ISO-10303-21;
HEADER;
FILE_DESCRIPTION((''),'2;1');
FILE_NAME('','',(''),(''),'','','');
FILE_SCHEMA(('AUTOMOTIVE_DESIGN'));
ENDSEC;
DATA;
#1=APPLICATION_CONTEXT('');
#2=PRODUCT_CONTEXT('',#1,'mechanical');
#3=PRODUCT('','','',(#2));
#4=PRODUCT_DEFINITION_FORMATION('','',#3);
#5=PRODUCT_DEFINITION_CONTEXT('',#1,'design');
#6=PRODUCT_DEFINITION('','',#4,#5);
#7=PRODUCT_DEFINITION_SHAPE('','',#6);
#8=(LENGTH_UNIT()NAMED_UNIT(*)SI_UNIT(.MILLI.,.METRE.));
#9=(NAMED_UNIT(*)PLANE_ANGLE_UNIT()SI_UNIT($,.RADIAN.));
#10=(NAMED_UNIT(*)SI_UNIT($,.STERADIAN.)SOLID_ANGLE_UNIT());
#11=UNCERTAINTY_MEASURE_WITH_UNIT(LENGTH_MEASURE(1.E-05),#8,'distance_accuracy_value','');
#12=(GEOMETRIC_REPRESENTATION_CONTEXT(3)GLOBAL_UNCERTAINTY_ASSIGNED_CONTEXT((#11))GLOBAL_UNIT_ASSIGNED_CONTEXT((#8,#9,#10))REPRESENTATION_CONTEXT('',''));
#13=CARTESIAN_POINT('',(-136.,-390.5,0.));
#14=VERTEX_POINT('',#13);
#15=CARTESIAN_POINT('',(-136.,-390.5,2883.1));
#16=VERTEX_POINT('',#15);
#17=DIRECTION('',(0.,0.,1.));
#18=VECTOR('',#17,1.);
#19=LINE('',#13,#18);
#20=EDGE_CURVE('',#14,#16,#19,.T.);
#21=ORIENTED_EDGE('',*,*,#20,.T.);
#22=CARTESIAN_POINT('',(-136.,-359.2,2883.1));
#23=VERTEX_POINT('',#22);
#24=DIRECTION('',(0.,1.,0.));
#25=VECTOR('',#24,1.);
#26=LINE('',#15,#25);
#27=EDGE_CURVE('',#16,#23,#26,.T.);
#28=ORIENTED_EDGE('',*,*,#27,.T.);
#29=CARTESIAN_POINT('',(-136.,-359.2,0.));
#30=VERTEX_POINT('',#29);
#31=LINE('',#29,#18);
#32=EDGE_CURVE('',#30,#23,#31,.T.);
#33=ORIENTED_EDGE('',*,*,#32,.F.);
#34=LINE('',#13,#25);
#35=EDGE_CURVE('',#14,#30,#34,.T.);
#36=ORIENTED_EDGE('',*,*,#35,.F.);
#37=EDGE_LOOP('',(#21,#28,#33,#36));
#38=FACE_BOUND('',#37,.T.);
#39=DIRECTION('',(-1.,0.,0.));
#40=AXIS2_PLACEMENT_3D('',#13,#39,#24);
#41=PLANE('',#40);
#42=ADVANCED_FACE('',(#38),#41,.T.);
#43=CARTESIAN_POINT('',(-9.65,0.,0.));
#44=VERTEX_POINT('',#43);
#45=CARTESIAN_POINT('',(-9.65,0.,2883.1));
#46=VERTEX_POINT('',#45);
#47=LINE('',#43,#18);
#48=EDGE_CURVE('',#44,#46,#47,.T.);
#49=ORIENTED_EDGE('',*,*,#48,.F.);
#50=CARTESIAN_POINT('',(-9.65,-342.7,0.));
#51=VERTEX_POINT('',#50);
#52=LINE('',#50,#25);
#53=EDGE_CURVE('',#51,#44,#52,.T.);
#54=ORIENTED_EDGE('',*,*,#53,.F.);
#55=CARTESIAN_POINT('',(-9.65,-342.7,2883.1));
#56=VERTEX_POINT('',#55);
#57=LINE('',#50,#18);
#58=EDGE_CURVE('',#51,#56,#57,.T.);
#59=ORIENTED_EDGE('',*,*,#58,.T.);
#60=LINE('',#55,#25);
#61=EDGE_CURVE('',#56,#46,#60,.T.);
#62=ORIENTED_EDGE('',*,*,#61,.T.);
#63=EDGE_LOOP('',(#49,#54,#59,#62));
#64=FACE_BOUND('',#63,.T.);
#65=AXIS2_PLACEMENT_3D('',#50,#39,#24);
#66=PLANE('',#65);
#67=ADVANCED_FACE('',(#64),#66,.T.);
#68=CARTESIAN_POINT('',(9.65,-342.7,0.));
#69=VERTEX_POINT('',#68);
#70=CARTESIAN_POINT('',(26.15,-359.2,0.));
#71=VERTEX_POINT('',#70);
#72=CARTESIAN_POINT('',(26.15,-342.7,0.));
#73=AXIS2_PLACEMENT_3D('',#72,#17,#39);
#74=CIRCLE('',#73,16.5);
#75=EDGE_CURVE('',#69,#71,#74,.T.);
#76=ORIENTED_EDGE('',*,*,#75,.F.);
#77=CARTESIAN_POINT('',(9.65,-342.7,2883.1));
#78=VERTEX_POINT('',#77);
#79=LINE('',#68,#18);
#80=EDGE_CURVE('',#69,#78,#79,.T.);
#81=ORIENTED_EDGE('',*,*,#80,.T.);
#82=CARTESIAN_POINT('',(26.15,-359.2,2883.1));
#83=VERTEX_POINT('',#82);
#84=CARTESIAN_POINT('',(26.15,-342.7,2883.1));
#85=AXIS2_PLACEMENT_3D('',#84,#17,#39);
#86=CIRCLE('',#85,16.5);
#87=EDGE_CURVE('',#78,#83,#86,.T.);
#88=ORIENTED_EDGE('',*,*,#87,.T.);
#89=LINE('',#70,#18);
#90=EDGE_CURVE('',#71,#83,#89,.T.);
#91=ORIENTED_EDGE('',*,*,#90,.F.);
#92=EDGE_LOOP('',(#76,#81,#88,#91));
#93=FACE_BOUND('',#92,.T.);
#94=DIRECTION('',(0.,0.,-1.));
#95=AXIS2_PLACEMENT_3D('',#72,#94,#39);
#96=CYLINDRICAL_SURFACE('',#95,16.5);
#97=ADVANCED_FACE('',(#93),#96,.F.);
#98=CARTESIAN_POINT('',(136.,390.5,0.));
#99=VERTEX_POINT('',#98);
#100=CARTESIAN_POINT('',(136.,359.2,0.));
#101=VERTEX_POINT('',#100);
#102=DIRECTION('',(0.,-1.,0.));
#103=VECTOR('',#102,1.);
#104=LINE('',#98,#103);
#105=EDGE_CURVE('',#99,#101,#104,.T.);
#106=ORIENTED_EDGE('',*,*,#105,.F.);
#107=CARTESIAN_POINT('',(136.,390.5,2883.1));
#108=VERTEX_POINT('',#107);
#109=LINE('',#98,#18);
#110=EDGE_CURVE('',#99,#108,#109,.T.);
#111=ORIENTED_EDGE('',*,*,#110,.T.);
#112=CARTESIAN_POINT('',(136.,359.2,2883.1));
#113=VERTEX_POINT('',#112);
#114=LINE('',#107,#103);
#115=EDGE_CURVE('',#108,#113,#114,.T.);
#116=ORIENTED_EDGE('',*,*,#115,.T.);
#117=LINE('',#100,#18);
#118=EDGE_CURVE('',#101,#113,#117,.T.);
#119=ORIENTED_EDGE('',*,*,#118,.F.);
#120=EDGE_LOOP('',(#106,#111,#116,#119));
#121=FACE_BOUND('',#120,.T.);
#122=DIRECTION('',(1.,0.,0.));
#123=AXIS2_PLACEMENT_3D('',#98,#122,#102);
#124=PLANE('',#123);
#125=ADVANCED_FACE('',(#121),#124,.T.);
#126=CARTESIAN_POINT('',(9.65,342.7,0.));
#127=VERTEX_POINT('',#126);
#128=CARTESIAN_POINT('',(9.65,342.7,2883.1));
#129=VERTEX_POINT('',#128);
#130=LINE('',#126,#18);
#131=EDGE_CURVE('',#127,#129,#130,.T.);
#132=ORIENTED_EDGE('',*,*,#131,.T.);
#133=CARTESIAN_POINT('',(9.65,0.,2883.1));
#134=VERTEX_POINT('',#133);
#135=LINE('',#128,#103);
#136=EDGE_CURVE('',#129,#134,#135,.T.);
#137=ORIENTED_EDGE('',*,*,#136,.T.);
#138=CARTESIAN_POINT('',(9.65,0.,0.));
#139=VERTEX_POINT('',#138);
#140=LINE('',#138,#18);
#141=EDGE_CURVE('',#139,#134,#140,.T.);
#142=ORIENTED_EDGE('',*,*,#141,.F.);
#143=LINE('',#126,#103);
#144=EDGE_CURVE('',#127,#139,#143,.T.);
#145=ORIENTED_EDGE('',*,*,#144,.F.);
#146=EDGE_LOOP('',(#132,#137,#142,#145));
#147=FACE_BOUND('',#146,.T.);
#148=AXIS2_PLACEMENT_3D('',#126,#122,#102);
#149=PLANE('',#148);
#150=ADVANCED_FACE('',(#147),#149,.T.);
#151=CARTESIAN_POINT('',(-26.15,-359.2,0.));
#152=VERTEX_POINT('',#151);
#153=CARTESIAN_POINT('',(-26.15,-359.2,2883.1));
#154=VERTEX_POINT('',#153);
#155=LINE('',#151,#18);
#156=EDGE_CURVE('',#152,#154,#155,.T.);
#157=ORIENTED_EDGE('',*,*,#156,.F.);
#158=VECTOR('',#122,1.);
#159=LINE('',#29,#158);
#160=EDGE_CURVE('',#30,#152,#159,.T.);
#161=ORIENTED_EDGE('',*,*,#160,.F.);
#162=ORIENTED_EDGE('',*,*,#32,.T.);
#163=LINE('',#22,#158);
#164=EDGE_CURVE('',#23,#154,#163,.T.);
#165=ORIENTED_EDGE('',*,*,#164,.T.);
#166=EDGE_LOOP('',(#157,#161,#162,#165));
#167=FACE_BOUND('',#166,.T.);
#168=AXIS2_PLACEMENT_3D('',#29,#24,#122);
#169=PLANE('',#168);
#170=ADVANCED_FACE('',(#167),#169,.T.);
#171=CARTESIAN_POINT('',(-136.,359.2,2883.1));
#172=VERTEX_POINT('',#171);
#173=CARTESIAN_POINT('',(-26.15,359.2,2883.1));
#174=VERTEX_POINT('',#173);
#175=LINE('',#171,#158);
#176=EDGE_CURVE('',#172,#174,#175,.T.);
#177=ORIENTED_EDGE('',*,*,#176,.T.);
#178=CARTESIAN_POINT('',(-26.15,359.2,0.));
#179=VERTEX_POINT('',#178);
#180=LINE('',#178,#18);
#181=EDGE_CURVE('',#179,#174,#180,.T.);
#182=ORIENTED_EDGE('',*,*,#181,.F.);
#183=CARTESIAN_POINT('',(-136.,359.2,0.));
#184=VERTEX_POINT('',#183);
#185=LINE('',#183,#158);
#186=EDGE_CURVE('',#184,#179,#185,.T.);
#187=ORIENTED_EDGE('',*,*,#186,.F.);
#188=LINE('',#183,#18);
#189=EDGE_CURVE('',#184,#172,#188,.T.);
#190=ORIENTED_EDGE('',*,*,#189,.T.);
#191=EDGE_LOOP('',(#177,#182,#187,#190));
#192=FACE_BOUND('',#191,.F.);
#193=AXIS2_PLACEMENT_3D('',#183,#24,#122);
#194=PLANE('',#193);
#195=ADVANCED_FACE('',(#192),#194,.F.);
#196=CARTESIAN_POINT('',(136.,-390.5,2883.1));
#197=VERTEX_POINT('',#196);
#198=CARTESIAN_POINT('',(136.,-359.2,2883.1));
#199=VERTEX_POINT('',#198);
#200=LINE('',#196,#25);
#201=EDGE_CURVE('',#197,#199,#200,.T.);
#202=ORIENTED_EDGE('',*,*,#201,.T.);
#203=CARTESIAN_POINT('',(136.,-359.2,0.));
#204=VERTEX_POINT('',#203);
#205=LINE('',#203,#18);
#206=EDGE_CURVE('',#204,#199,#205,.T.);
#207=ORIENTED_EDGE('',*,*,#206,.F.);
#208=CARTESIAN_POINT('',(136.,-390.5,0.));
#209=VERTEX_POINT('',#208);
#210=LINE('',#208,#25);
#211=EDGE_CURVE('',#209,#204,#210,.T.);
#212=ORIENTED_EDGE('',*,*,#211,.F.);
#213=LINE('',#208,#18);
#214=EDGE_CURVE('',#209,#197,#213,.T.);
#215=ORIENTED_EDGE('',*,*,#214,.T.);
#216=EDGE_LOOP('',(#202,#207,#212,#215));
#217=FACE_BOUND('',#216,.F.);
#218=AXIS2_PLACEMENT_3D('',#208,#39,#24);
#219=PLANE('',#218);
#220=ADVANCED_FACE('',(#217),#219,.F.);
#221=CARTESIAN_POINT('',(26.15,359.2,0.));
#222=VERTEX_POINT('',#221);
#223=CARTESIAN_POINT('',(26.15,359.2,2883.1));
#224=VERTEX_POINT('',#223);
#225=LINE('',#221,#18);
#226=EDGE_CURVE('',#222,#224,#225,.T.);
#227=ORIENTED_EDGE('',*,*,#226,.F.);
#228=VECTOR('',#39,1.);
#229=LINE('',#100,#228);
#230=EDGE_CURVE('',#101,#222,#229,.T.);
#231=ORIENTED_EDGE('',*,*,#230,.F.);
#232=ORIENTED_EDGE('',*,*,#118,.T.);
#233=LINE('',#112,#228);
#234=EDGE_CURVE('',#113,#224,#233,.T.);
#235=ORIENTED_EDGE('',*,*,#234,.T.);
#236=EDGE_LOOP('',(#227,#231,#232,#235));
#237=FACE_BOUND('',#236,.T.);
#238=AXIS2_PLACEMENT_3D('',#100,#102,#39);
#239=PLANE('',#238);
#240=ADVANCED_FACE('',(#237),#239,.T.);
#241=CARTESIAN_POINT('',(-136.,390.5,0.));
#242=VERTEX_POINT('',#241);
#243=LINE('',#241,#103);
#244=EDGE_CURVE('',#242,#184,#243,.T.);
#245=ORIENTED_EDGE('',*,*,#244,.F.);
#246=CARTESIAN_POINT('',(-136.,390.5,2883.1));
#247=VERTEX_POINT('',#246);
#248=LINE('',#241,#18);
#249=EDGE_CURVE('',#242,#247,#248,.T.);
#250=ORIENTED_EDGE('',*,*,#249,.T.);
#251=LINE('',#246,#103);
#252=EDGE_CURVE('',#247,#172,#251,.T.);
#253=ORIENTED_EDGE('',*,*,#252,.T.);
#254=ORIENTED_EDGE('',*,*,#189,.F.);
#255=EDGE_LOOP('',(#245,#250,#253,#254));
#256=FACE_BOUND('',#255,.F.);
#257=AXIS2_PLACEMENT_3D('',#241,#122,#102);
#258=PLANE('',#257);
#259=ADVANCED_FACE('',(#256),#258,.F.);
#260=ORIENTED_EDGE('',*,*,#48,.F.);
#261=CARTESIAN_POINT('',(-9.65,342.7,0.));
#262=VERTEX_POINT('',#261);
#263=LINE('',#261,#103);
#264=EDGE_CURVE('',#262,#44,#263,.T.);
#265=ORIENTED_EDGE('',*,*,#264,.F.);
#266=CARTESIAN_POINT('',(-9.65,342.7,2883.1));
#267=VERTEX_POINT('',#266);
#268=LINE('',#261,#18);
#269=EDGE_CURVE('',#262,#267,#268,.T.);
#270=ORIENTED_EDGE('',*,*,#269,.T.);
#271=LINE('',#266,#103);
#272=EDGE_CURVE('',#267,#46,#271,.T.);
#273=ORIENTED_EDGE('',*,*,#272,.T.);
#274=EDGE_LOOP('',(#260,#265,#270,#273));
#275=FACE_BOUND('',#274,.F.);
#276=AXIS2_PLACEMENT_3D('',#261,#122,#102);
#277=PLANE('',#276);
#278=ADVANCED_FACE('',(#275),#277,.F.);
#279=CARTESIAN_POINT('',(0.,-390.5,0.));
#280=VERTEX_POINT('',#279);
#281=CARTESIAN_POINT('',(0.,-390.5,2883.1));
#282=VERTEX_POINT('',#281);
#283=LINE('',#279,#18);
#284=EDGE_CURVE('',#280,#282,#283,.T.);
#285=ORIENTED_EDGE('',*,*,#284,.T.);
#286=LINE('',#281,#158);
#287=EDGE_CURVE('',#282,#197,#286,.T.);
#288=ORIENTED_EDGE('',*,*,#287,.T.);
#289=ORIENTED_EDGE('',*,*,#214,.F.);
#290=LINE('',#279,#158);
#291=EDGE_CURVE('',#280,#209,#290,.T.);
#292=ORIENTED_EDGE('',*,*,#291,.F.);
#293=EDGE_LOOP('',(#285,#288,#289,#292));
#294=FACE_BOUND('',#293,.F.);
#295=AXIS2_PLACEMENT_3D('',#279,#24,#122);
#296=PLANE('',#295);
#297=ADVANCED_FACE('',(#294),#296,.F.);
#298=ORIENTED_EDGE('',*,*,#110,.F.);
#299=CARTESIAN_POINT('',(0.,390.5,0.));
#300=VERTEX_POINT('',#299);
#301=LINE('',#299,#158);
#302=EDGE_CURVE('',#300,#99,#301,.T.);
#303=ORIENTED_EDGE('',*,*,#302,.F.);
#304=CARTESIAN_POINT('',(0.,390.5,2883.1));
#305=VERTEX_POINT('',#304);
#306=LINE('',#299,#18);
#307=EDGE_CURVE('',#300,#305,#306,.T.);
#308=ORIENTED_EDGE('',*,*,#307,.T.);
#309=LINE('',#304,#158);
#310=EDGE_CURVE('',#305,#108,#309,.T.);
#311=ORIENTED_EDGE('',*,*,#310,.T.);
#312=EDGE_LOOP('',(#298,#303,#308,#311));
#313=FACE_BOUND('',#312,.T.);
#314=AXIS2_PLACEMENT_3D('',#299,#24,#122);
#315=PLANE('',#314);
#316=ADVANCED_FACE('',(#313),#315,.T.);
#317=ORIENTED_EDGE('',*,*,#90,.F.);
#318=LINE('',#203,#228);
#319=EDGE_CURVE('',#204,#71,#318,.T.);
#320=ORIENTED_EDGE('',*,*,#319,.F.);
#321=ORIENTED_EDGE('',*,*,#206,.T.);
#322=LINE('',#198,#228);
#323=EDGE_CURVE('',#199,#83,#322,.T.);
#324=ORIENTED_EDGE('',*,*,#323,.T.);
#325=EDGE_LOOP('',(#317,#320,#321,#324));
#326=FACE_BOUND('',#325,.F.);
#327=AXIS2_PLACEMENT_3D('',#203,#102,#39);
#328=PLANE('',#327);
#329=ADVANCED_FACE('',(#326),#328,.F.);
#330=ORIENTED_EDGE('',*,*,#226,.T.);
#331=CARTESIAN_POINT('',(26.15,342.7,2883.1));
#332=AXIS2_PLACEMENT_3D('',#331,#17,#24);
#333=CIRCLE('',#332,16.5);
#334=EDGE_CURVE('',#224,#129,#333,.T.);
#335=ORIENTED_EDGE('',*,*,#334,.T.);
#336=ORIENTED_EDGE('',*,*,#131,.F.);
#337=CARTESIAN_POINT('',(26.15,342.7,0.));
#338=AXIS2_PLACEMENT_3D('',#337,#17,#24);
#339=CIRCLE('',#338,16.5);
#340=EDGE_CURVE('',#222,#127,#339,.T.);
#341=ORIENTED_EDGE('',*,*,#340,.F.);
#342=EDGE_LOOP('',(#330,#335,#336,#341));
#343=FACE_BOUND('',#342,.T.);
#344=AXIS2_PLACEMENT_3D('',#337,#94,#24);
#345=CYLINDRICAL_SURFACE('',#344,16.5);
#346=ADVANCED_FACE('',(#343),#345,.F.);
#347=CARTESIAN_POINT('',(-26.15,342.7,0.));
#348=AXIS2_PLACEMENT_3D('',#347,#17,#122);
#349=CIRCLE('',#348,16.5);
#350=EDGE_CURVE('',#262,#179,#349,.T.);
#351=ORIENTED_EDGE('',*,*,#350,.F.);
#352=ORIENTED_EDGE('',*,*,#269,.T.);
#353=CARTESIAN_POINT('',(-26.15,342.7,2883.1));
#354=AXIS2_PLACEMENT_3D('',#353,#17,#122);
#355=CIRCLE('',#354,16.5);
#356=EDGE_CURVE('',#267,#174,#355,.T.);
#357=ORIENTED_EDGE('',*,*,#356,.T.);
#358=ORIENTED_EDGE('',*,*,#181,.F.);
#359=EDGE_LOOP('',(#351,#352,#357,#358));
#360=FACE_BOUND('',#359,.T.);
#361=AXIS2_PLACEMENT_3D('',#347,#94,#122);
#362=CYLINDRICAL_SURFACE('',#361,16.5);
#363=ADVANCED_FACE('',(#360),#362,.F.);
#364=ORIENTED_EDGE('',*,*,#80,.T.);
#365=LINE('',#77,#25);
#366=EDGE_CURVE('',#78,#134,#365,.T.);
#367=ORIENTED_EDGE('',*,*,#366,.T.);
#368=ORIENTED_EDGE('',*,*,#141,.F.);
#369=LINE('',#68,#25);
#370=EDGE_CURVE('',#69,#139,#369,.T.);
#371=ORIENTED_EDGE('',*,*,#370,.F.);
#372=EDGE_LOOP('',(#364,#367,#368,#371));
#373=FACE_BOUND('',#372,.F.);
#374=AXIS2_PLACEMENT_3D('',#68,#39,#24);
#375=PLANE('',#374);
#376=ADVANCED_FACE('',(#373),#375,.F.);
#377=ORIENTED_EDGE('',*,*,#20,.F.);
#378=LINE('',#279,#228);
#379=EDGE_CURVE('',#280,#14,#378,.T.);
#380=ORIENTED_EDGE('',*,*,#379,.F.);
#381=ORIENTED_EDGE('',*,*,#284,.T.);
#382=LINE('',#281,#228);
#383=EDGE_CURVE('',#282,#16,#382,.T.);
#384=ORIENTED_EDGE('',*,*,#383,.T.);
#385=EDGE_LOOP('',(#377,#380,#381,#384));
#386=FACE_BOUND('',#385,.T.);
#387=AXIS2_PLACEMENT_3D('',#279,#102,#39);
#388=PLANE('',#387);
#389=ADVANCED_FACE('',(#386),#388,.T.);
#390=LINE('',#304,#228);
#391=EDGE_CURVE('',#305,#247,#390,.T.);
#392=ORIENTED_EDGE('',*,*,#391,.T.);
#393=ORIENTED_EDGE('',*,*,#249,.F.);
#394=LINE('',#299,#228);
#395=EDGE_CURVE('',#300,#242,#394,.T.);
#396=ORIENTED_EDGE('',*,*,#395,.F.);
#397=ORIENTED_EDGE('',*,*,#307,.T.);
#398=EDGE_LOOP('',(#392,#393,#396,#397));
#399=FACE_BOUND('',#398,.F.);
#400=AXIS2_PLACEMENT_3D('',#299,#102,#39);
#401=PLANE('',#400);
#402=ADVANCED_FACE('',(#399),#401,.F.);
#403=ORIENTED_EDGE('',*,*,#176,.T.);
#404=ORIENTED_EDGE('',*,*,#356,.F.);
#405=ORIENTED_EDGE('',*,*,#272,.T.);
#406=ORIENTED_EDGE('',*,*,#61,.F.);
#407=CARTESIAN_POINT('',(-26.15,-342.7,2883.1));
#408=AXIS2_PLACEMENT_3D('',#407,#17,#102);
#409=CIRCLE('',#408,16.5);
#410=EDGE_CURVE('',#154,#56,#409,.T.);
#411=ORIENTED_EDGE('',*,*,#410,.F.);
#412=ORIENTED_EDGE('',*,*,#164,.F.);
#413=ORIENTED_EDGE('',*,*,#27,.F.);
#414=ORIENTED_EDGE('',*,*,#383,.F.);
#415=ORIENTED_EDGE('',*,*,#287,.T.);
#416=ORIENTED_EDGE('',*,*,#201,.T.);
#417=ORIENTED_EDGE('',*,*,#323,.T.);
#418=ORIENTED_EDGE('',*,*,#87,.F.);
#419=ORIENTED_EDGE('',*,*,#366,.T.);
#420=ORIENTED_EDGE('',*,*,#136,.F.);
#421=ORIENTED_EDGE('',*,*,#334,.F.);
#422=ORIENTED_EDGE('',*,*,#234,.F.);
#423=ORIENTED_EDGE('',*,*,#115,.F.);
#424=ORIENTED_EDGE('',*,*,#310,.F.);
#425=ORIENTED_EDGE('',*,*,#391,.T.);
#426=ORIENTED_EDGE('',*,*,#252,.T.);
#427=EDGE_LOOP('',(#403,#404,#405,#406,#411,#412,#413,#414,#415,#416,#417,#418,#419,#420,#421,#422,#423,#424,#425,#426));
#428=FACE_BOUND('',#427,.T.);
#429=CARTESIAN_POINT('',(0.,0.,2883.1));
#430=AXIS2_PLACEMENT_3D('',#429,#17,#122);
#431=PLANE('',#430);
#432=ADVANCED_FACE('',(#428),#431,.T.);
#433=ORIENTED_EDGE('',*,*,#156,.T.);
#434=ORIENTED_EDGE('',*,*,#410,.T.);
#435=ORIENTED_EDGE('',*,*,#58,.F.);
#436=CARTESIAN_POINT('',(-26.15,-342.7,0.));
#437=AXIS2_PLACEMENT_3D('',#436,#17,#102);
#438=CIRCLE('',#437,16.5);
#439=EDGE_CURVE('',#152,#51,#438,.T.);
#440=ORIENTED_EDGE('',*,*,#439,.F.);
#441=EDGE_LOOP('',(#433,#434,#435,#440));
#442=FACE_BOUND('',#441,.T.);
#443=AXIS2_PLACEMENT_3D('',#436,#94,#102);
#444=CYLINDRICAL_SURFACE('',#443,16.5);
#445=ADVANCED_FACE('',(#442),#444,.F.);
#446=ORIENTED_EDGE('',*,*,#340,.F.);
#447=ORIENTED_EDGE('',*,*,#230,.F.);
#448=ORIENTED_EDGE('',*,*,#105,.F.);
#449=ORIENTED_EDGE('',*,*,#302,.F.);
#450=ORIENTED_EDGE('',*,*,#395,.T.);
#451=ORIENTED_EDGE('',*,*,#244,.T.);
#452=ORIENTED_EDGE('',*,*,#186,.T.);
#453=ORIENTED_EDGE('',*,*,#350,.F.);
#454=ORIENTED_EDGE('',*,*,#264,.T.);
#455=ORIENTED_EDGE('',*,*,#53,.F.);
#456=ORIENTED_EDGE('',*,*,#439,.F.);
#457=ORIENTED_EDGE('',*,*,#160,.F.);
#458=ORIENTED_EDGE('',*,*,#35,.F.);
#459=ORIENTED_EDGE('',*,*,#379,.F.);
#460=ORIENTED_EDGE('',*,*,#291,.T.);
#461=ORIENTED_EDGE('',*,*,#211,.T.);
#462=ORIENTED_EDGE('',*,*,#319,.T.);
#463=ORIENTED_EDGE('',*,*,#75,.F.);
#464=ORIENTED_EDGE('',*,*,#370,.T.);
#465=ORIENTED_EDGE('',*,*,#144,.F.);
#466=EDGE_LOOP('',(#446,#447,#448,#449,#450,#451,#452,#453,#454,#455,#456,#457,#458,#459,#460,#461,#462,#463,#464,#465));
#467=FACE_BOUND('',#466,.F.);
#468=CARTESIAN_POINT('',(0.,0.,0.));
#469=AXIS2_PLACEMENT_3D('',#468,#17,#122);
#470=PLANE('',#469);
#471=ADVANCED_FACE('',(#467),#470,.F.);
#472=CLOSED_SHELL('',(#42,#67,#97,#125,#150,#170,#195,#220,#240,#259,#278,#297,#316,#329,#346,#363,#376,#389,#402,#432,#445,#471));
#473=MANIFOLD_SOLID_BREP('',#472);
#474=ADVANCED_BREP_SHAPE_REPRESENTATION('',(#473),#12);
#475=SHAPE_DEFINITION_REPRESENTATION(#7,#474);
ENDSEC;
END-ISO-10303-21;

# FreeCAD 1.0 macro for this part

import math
import FreeCAD as App
import Part
import Sketcher

V = App.Vector

doc = App.newDocument("Part")
params = doc.addObject("Spreadsheet::Sheet", "Params")
for row, (alias, value) in enumerate([
    ("sketch1_radius", "16.5 mm"),
    ("sketch1_height", "31.3 mm"),
    ("pad1_length", "2883.1 mm"),
], start=1):
    params.set(f"A{row}", alias)
    params.set(f"B{row}", "=" + value)
    params.setAlias(f"B{row}", alias)

body = doc.addObject("PartDesign::Body", "Body")

sketch1 = doc.addObject("Sketcher::SketchObject", "Sketch")
body.addObject(sketch1)
sketch1.AttachmentSupport = (doc.XY_Plane, [""])
sketch1.MapMode = "FlatFace"
sketch1.addGeometry([
    Part.LineSegment(V(-136, -359, 0), V(-136, -390, 0)),
    Part.LineSegment(V(-136, -390, 0), V(136, -390, 0)),
    Part.LineSegment(V(136, -390, 0), V(136, -359, 0)),
    Part.LineSegment(V(136, -359, 0), V(26, -359, 0)),
    Part.ArcOfCircle(Part.Circle(V(26, -343, 0), V(0, 0, 1), 16), math.radians(180), math.radians(270)),
    Part.LineSegment(V(10, -343, 0), V(10, 343, 0)),
    Part.ArcOfCircle(Part.Circle(V(26, 343, 0), V(0, 0, 1), 16), math.radians(90), math.radians(180)),
    Part.LineSegment(V(26, 359, 0), V(136, 359, 0)),
    Part.LineSegment(V(136, 359, 0), V(136, 390, 0)),
    Part.LineSegment(V(136, 390, 0), V(-136, 390, 0)),
    Part.LineSegment(V(-136, 390, 0), V(-136, 359, 0)),
    Part.LineSegment(V(-136, 359, 0), V(-26, 359, 0)),
    Part.ArcOfCircle(Part.Circle(V(-26, 343, 0), V(0, 0, 1), 16), math.radians(0), math.radians(90)),
    Part.LineSegment(V(-10, 343, 0), V(-10, -343, 0)),
    Part.ArcOfCircle(Part.Circle(V(-26, -343, 0), V(0, 0, 1), 16), math.radians(-90), math.radians(0)),
    Part.LineSegment(V(-26, -359, 0), V(-136, -359, 0)),
], False)
sketch1.addConstraint([
    Sketcher.Constraint("Coincident", 0, 2, 1, 1),
    Sketcher.Constraint("Coincident", 1, 2, 2, 1),
    Sketcher.Constraint("Coincident", 2, 2, 3, 1),
    Sketcher.Constraint("Tangent", 3, 2, 4, 2),
    Sketcher.Constraint("Tangent", 4, 1, 5, 1),
    Sketcher.Constraint("Tangent", 5, 2, 6, 2),
    Sketcher.Constraint("Tangent", 6, 1, 7, 1),
    Sketcher.Constraint("Coincident", 7, 2, 8, 1),
    Sketcher.Constraint("Coincident", 8, 2, 9, 1),
    Sketcher.Constraint("Coincident", 9, 2, 10, 1),
    Sketcher.Constraint("Coincident", 10, 2, 11, 1),
    Sketcher.Constraint("Tangent", 11, 2, 12, 2),
    Sketcher.Constraint("Tangent", 12, 1, 13, 1),
    Sketcher.Constraint("Tangent", 13, 2, 14, 2),
    Sketcher.Constraint("Tangent", 14, 1, 15, 1),
    Sketcher.Constraint("Coincident", 15, 2, 0, 1),
    Sketcher.Constraint("Vertical", 0),
    Sketcher.Constraint("Horizontal", 1),
    Sketcher.Constraint("Vertical", 2),
    Sketcher.Constraint("Horizontal", 3),
    Sketcher.Constraint("Vertical", 5),
    Sketcher.Constraint("Horizontal", 7),
    Sketcher.Constraint("Vertical", 8),
    Sketcher.Constraint("Horizontal", 9),
    Sketcher.Constraint("Vertical", 10),
    Sketcher.Constraint("Horizontal", 11),
    Sketcher.Constraint("Vertical", 13),
    Sketcher.Constraint("Horizontal", 15),
    Sketcher.Constraint("Equal", 4, 6),
    Sketcher.Constraint("Equal", 6, 12),
    Sketcher.Constraint("Equal", 12, 14),
    Sketcher.Constraint("Symmetric", 4, 3, 12, 3, -1, 1),
    Sketcher.Constraint("Symmetric", 0, 2, 8, 2, -1, 1),
    Sketcher.Constraint("Symmetric", 7, 2, 10, 2, -2),
    Sketcher.Constraint("Symmetric", 2, 2, 15, 2, -2),
    Sketcher.Constraint("Radius", 4, 16.5),
    Sketcher.Constraint("DistanceY", 0, 2, 0, 1, 31.3),
    Sketcher.Constraint("DistanceX", 0, 2, -1, 1, 136.0),
    Sketcher.Constraint("DistanceY", 0, 2, -1, 1, 390.5),
    Sketcher.Constraint("DistanceX", -1, 1, 4, 1, 9.65),
])
sketch1.setExpression("Constraints[35]", "Params.sketch1_radius")
sketch1.setExpression("Constraints[36]", "Params.sketch1_height")
pad1 = doc.addObject("PartDesign::Pad", "Pad")
body.addObject(pad1)
pad1.Profile = sketch1
pad1.setExpression("Length", "Params.pad1_length")

doc.recompute()
